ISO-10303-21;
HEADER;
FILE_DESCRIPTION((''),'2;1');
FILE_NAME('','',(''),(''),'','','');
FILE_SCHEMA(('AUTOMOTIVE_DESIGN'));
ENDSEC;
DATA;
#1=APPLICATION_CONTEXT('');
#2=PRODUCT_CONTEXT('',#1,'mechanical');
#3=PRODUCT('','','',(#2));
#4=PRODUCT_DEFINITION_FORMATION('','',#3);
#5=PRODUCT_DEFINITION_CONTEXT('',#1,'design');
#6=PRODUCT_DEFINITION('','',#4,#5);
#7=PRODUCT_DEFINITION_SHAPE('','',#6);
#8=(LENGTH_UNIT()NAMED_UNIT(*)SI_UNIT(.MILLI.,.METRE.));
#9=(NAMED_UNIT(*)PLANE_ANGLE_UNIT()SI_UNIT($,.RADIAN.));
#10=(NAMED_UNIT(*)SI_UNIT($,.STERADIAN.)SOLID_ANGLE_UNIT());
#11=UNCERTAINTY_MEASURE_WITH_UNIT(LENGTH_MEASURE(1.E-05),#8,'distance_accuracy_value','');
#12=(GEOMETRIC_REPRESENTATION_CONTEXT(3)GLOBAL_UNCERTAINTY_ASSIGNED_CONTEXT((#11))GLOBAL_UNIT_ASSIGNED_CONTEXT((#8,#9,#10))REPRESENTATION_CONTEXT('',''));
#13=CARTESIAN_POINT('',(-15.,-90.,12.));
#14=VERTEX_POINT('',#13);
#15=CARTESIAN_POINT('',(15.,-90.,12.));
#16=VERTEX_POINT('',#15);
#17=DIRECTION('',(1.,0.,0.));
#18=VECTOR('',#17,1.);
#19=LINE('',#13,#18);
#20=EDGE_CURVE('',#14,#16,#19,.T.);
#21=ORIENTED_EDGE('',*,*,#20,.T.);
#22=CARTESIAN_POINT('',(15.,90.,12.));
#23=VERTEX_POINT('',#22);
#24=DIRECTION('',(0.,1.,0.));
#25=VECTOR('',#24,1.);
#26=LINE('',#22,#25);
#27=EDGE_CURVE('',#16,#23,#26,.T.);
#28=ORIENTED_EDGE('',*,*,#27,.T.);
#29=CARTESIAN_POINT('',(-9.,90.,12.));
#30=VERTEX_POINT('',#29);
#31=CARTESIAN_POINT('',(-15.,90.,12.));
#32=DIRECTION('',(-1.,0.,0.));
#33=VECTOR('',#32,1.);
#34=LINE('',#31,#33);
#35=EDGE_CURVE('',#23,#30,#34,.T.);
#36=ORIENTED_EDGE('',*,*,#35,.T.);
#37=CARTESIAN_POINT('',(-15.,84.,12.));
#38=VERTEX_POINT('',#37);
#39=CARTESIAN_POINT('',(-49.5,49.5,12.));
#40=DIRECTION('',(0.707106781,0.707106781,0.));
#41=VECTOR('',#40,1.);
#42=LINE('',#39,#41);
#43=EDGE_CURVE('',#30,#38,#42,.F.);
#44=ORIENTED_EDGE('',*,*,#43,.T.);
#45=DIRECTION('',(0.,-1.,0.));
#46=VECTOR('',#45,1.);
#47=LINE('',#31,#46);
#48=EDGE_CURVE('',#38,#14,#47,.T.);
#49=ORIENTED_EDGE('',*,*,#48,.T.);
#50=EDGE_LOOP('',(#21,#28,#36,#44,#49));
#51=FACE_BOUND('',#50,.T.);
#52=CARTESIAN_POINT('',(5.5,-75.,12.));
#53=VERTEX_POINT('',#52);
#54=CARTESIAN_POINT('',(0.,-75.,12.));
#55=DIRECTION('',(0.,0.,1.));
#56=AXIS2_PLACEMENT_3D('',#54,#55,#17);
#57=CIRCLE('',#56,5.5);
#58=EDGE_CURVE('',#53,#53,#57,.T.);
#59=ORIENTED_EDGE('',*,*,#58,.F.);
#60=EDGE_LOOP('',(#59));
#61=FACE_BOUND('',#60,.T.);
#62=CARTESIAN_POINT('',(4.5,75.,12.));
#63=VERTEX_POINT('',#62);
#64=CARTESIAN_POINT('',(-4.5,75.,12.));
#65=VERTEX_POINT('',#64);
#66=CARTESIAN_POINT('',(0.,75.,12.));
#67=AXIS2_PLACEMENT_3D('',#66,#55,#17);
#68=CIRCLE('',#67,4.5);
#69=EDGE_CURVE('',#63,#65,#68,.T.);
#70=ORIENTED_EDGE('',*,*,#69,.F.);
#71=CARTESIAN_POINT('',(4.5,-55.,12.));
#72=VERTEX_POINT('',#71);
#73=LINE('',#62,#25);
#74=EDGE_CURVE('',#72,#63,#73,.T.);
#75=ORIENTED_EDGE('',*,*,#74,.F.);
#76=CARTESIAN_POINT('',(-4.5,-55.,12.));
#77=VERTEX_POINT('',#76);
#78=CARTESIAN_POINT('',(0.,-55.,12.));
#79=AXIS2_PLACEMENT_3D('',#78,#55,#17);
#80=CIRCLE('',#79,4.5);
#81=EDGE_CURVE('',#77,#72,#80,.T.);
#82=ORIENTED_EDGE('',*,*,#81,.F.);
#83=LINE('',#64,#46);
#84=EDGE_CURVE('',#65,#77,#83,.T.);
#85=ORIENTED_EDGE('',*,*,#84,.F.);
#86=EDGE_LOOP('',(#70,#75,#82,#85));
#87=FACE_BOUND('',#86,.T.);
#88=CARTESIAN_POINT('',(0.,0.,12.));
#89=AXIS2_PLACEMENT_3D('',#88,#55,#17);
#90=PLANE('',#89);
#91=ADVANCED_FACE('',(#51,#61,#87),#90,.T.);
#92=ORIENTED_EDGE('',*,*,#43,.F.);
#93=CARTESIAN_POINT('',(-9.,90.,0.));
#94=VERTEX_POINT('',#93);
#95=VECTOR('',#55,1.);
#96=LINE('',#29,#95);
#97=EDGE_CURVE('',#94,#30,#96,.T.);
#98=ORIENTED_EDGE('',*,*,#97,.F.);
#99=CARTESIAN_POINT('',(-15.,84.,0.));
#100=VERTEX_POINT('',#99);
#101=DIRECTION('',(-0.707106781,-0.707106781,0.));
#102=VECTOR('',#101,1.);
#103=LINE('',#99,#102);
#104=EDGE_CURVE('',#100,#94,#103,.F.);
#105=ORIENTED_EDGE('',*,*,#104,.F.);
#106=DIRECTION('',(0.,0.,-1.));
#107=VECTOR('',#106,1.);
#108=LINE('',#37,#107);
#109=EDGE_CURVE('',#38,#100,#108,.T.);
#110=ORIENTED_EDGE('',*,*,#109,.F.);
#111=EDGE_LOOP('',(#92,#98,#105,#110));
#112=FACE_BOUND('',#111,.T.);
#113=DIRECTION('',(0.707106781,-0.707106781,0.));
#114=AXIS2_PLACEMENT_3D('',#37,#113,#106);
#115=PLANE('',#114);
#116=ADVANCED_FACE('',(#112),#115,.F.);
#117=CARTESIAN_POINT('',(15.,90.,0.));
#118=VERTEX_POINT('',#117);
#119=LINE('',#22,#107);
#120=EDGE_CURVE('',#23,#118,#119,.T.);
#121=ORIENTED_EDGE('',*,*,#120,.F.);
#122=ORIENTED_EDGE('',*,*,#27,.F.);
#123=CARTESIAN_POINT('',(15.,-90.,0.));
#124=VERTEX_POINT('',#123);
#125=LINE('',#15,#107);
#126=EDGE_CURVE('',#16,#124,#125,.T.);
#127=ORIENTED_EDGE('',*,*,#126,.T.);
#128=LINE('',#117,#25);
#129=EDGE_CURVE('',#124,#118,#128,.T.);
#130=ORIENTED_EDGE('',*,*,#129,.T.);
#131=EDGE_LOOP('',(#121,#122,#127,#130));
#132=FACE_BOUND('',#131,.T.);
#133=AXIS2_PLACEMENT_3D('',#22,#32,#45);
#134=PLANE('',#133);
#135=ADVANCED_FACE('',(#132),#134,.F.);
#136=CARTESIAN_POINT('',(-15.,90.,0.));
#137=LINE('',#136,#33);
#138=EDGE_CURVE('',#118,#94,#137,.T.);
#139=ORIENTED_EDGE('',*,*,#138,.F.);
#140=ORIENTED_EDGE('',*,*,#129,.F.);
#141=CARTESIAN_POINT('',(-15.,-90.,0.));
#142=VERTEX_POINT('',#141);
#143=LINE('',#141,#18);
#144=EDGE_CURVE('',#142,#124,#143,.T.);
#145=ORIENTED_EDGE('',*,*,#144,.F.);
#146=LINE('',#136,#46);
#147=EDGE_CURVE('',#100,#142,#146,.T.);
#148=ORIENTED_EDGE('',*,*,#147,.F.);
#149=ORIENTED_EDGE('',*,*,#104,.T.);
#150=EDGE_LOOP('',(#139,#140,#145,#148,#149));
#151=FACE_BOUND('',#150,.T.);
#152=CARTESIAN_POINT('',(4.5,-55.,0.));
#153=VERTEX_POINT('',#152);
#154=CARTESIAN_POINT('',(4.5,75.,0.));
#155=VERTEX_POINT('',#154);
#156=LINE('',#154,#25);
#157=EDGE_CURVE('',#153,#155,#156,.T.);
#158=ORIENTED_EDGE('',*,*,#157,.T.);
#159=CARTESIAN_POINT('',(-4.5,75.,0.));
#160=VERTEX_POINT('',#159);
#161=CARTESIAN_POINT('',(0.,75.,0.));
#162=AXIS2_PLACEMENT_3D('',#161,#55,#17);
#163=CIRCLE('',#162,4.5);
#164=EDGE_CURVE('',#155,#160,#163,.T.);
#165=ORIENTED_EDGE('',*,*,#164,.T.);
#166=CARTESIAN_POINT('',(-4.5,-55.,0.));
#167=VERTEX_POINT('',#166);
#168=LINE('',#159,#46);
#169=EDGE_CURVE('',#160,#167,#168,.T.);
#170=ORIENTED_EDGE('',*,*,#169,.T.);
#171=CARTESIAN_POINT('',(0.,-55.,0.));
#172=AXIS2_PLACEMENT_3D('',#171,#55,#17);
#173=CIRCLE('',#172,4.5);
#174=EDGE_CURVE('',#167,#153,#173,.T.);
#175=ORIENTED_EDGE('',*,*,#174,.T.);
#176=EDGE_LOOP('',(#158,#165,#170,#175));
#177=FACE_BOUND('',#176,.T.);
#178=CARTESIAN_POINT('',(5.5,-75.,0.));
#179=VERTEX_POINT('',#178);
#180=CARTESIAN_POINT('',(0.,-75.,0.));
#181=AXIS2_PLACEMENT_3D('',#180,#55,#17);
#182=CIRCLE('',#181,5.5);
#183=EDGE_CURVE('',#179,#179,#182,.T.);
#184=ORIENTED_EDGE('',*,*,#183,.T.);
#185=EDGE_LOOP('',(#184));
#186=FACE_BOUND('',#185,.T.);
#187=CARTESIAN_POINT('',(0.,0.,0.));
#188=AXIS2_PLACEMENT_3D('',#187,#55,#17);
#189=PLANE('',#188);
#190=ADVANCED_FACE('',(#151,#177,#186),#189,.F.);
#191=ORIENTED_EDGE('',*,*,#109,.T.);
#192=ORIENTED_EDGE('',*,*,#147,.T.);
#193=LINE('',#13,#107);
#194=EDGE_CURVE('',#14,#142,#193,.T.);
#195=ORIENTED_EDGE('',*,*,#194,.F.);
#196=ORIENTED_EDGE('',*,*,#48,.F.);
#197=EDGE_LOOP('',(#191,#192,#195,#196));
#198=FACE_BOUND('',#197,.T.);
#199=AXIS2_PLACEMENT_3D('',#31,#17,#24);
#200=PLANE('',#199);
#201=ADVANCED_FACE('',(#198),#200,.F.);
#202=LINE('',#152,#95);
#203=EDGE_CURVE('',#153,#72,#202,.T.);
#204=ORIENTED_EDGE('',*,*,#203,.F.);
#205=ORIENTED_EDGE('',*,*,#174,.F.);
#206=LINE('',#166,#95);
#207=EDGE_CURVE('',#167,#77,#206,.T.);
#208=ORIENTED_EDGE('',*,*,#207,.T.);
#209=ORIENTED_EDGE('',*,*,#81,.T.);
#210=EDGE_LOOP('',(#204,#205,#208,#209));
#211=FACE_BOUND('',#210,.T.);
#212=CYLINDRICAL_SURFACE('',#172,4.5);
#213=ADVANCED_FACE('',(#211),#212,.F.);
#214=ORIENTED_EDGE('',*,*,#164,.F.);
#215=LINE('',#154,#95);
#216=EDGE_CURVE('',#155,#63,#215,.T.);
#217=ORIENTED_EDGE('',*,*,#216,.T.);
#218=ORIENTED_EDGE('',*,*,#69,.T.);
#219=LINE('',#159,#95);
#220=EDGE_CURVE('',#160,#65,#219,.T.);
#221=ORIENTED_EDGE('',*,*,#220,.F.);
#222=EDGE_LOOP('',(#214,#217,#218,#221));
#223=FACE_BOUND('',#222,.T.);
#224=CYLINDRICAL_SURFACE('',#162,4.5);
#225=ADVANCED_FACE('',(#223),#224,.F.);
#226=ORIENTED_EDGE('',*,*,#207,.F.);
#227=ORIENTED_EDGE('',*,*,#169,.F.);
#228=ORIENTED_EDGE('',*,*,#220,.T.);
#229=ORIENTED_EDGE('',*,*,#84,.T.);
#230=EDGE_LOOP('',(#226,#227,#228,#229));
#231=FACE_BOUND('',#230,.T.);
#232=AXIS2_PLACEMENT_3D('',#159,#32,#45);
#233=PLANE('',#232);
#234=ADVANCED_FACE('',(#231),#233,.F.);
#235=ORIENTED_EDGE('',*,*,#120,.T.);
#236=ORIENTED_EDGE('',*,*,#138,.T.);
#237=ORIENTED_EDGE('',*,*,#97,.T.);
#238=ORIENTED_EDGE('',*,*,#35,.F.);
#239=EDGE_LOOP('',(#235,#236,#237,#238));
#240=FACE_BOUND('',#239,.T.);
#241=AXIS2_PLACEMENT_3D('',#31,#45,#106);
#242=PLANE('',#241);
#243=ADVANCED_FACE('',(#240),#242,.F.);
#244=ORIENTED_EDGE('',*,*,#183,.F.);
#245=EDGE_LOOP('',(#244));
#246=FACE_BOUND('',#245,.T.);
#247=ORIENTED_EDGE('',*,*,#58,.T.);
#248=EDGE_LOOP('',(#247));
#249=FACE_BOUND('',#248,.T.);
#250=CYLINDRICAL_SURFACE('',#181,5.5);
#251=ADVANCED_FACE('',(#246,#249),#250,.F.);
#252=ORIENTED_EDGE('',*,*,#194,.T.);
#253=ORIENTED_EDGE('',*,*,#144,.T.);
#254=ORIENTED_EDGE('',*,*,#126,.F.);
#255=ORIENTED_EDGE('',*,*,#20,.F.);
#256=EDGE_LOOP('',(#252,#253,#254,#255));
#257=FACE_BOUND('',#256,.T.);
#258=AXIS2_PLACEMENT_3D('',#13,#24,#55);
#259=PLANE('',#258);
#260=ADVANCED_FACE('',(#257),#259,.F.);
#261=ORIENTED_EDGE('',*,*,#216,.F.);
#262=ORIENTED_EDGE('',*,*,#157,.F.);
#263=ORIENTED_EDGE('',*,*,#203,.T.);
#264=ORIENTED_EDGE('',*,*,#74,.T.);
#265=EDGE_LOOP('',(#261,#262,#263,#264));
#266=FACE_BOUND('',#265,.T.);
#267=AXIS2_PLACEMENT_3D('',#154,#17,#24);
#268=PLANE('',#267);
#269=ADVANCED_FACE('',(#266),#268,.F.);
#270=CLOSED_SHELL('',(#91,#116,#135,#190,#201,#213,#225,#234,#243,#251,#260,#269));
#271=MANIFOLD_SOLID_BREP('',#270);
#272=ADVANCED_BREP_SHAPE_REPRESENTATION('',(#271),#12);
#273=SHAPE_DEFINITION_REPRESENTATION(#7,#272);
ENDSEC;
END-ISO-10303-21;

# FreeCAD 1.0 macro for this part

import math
import FreeCAD as App
import Part
import Sketcher
Q = App.Units.Quantity


def edges_at(feature, points):
    """Names of the edges that pass closest to the given points."""
    edges = feature.Shape.Edges
    near = lambda p: min(range(len(edges)), key=lambda i: edges[i].distToShape(Part.Vertex(*p))[0])
    return sorted({f"Edge{near(p) + 1}" for p in points})


def add_polygon(sketch, points):
    """Adds a closed chain of lines whose ends are joined by coincident constraints."""
    first, n = sketch.GeometryCount, len(points)
    for a, b in zip(points, points[1:] + points[:1]):
        sketch.addGeometry(Part.LineSegment(App.Vector(*a, 0), App.Vector(*b, 0)), False)
    for i in range(n):
        sketch.addConstraint(Sketcher.Constraint("Coincident", first + i, 2, first + (i + 1) % n, 1))

doc = App.newDocument("Part")
body = doc.addObject("PartDesign::Body", "Body")

# Sketch on XY plane
sketch1 = doc.addObject("Sketcher::SketchObject", "Sketch")
body.addObject(sketch1)
sketch1.AttachmentSupport = (doc.XY_Plane, [""])
sketch1.MapMode = "FlatFace"
add_polygon(sketch1, [(-15, 90), (-15, -90), (15, -90), (15, 90)])  # lines 0-3
sketch1.addConstraint([
    Sketcher.Constraint("Vertical", 0),
    Sketcher.Constraint("Horizontal", 1),
    Sketcher.Constraint("Vertical", 2),
    Sketcher.Constraint("Horizontal", 3),
    Sketcher.Constraint("Symmetric", 0, 2, 2, 2, -1, 1),
    Sketcher.Constraint("DistanceX", 1, 1, 1, 2, Q("30 mm")),
    Sketcher.Constraint("DistanceY", 0, 2, 0, 1, Q("180 mm")),
])
pad1 = doc.addObject("PartDesign::Pad", "Pad")
body.addObject(pad1)
pad1.Profile = sketch1
pad1.Length = 12

# Sketch on XY plane
sketch2 = doc.addObject("Sketcher::SketchObject", "Sketch001")
body.addObject(sketch2)
sketch2.AttachmentSupport = (doc.XY_Plane, [""])
sketch2.MapMode = "FlatFace"
sketch2.AttachmentOffset = App.Placement(App.Vector(0, 0, 12), App.Rotation())
sketch2.addGeometry([
    Part.Circle(App.Vector(0, -75, 0), App.Vector(0, 0, 1), 5.5),  # 0
    Part.LineSegment(App.Vector(4.5, -55, 0), App.Vector(4.5, 75, 0)),  # 1
    Part.ArcOfCircle(Part.Circle(App.Vector(0, 75, 0), App.Vector(0, 0, 1), 4.5), math.radians(0), math.radians(180)),  # 2
    Part.LineSegment(App.Vector(-4.5, 75, 0), App.Vector(-4.5, -55, 0)),  # 3
    Part.ArcOfCircle(Part.Circle(App.Vector(0, -55, 0), App.Vector(0, 0, 1), 4.5), math.radians(180), math.radians(360)),  # 4
], False)
sketch2.addConstraint([
    Sketcher.Constraint("Tangent", 1, 2, 2, 1),
    Sketcher.Constraint("Tangent", 2, 2, 3, 1),
    Sketcher.Constraint("Tangent", 3, 2, 4, 1),
    Sketcher.Constraint("Tangent", 4, 2, 1, 1),
    Sketcher.Constraint("Vertical", 1),
    Sketcher.Constraint("Vertical", 3),
    Sketcher.Constraint("Symmetric", 0, 3, 2, 3, -1, 1),
    Sketcher.Constraint("PointOnObject", 0, 3, -2),
    Sketcher.Constraint("Diameter", 0, Q("11 mm")),
    Sketcher.Constraint("Radius", 2, Q("4.5 mm")),
    Sketcher.Constraint("DistanceY", 1, 1, 1, 2, Q("130 mm")),
    Sketcher.Constraint("DistanceY", 0, 3, -1, 1, Q("75 mm")),
])
pocket1 = doc.addObject("PartDesign::Pocket", "Pocket")
body.addObject(pocket1)
pocket1.Profile = sketch2
pocket1.Length = 12
doc.recompute()

chamfer = doc.addObject("PartDesign::Chamfer", "Chamfer")
body.addObject(chamfer)
chamfer.Base = (pocket1, edges_at(pocket1, [(-15, 90, 6)]))
chamfer.Size = 6

doc.recompute()
